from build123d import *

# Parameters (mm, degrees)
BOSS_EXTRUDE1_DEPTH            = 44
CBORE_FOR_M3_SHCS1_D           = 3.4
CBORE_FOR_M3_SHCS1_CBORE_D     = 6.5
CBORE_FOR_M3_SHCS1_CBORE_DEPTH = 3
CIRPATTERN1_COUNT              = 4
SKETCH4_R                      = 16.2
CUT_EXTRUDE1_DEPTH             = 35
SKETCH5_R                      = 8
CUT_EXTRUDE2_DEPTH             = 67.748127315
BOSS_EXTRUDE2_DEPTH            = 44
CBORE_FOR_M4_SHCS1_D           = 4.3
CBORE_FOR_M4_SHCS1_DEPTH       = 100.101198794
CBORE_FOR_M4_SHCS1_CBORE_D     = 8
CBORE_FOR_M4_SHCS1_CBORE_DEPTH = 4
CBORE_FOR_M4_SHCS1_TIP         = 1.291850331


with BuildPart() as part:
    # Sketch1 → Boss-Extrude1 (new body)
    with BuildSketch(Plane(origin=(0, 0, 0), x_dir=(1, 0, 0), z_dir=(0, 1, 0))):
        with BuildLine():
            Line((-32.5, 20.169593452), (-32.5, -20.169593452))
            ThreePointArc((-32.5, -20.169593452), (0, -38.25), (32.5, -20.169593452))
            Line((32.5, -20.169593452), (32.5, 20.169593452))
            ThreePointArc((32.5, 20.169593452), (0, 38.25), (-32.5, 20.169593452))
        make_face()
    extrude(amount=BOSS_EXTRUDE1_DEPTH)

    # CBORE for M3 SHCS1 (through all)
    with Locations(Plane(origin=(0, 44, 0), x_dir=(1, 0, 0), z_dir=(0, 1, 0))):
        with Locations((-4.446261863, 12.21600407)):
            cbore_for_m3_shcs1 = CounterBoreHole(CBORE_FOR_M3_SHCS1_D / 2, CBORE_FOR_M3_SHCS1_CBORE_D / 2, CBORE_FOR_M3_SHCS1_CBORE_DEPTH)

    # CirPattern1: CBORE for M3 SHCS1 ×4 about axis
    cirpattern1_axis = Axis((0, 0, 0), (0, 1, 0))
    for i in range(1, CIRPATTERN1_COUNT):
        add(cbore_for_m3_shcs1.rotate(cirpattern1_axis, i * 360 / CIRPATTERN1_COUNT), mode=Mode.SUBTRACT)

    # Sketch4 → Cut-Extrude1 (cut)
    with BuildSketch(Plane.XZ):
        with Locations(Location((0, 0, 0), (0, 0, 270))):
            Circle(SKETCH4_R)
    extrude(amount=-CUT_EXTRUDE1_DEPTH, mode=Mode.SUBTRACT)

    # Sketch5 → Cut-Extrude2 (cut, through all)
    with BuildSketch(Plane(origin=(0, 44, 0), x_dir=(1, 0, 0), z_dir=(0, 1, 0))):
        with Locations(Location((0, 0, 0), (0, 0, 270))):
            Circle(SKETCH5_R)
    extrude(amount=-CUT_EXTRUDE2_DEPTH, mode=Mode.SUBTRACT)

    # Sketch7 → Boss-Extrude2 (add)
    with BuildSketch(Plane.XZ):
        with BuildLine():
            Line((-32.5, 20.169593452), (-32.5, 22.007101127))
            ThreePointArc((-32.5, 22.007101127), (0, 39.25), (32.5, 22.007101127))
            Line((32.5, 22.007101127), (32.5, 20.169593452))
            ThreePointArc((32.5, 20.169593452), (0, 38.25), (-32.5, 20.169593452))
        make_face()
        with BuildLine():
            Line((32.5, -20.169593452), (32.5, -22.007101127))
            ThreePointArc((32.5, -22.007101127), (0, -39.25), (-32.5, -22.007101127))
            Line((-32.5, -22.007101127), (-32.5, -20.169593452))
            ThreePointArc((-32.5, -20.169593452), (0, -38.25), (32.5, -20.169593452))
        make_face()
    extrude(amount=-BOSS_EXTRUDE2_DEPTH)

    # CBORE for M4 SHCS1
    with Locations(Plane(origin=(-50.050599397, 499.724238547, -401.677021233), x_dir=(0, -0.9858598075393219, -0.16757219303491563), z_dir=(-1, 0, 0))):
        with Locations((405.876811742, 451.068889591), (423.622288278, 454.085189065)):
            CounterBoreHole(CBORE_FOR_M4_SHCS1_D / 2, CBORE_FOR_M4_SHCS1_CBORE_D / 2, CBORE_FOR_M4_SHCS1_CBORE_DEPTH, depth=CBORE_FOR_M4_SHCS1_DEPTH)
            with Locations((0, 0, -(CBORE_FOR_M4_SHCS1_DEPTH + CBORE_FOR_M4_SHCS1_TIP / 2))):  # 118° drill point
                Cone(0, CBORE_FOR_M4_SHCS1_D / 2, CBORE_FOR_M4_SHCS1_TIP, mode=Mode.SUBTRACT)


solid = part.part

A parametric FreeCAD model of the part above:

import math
import FreeCAD as App
import Part
import Sketcher

V = App.Vector
Q = App.Units.Quantity

doc = App.newDocument("Part")
params = doc.addObject("Spreadsheet::Sheet", "Params")
for row, (alias, value) in enumerate([
    ("sketch1_radius", "38.25 mm"),
    ("pad1_length", "44 mm"),
    ("sketch2_diameter", "3.4 mm"),
    ("hole_diameter", "3.4 mm"),
    ("hole_cbore_diameter", "6.5 mm"),
    ("hole_cbore_depth", "3 mm"),
    ("sketch3_diameter", "32.4 mm"),
    ("pocket1_length", "35 mm"),
    ("sketch4_diameter", "16 mm"),
    ("sketch5_radius", "38.25 mm"),
    ("sketch5_radius2", "39.25 mm"),
    ("pad2_length", "44 mm"),
    ("sketch6_diameter", "4.3 mm"),
    ("hole2_diameter", "4.3 mm"),
    ("hole2_depth", "100.101199 mm"),
    ("hole2_cbore_diameter", "8 mm"),
    ("hole2_cbore_depth", "4 mm"),
], start=1):
    params.set(f"A{row}", alias)
    params.set(f"B{row}", "=" + value)
    params.setAlias(f"B{row}", alias)

body = doc.addObject("PartDesign::Body", "Body")

# Sketch on XZ plane
sketch1 = body.newObject("Sketcher::SketchObject", "Sketch")
sketch1.AttachmentSupport = (doc.getObject("XZ_Plane"), [""])
sketch1.MapMode = "FlatFace"
sketch1.addGeometry(Part.LineSegment(V(-32, -20, 0), V(-32, 20, 0)), False)
sketch1.addGeometry(Part.ArcOfCircle(Part.Circle(V(0, 0, 0), V(0, 0, 1), 38), math.radians(32), math.radians(148)), False)
sketch1.addGeometry(Part.LineSegment(V(32, 20, 0), V(32, -20, 0)), False)
sketch1.addGeometry(Part.ArcOfCircle(Part.Circle(V(0, 0, 0), V(0, 0, 1), 38), math.radians(-148), math.radians(-32)), False)
sketch1.addConstraint(Sketcher.Constraint("Coincident", 0, 2, 1, 2))
sketch1.addConstraint(Sketcher.Constraint("Coincident", 1, 1, 2, 1))
sketch1.addConstraint(Sketcher.Constraint("Coincident", 2, 2, 3, 2))
sketch1.addConstraint(Sketcher.Constraint("Coincident", 3, 1, 0, 1))
sketch1.addConstraint(Sketcher.Constraint("Vertical", 0))
sketch1.addConstraint(Sketcher.Constraint("Vertical", 2))
sketch1.addConstraint(Sketcher.Constraint("Coincident", 1, 3, -1, 1))
sketch1.addConstraint(Sketcher.Constraint("Coincident", 3, 3, -1, 1))
sketch1.addConstraint(Sketcher.Constraint("Equal", 1, 3))
sketch1.addConstraint(Sketcher.Constraint("Horizontal", 0, 2, 1, 1))
sketch1.addConstraint(Sketcher.Constraint("Radius", 1, Q("38.25 mm")))
sketch1.addConstraint(Sketcher.Constraint("DistanceX", 0, 2, 1, 1, Q("65 mm")))
sketch1.setExpression("Constraints[10]", "Params.sketch1_radius")
pad1 = body.newObject("PartDesign::Pad", "Pad")
pad1.Profile = sketch1
pad1.setExpression("Length", "Params.pad1_length")
pad1.Reversed = True

# Sketch on XZ plane
sketch2 = body.newObject("Sketcher::SketchObject", "Sketch001")
sketch2.AttachmentSupport = (doc.getObject("XZ_Plane"), [""])
sketch2.MapMode = "FlatFace"
sketch2.AttachmentOffset = App.Placement(V(0, 0, -44), App.Rotation())
sketch2.addGeometry(Part.Circle(V(-4.4, -12.2, 0), V(0, 0, 1), 1.7), False)
sketch2.addConstraint(Sketcher.Constraint("Diameter", 0, Q("3.4 mm")))
sketch2.addConstraint(Sketcher.Constraint("DistanceX", 0, 3, -1, 1, Q("4.446262 mm")))
sketch2.addConstraint(Sketcher.Constraint("DistanceY", 0, 3, -1, 1, Q("12.216004 mm")))
sketch2.setExpression("Constraints[0]", "Params.sketch2_diameter")
doc.recompute()
hole = body.newObject("PartDesign::Hole", "Hole")
hole.Profile = sketch2
hole.ThreadType = "None"
hole.setExpression("Diameter", "Params.hole_diameter")
hole.DepthType = "ThroughAll"
hole.HoleCutType = "Counterbore"
hole.setExpression("HoleCutDiameter", "Params.hole_cbore_diameter")
hole.setExpression("HoleCutDepth", "Params.hole_cbore_depth")
hole.Reversed = True
doc.recompute()

polarpattern = body.newObject("PartDesign::PolarPattern", "PolarPattern")
polarpattern.Originals = [hole]
polarpattern.Axis = (doc.getObject("Y_Axis"), [""])
polarpattern.Angle = 360
polarpattern.Occurrences = 4
body.Tip = polarpattern

# Sketch on XZ plane
sketch3 = body.newObject("Sketcher::SketchObject", "Sketch002")
sketch3.AttachmentSupport = (doc.getObject("XZ_Plane"), [""])
sketch3.MapMode = "FlatFace"
sketch3.addGeometry(Part.Circle(V(0, 0, 0), V(0, 0, 1), 16), False)
sketch3.addConstraint(Sketcher.Constraint("Coincident", 0, 3, -1, 1))
sketch3.addConstraint(Sketcher.Constraint("Diameter", 0, Q("32.4 mm")))
sketch3.setExpression("Constraints[1]", "Params.sketch3_diameter")
pocket1 = body.newObject("PartDesign::Pocket", "Pocket")
pocket1.Profile = sketch3
pocket1.setExpression("Length", "Params.pocket1_length")

# Sketch on XZ plane
sketch4 = body.newObject("Sketcher::SketchObject", "Sketch003")
sketch4.AttachmentSupport = (doc.getObject("XZ_Plane"), [""])
sketch4.MapMode = "FlatFace"
sketch4.AttachmentOffset = App.Placement(V(0, 0, -44), App.Rotation())
sketch4.addGeometry(Part.Circle(V(0, 0, 0), V(0, 0, 1), 8), False)
sketch4.addConstraint(Sketcher.Constraint("Coincident", 0, 3, -1, 1))
sketch4.addConstraint(Sketcher.Constraint("Diameter", 0, Q("16 mm")))
sketch4.setExpression("Constraints[1]", "Params.sketch4_diameter")
pocket2 = body.newObject("PartDesign::Pocket", "Pocket001")
pocket2.Profile = sketch4
pocket2.Type = "ThroughAll"
pocket2.Reversed = True

# Sketch on XZ plane
sketch5 = body.newObject("Sketcher::SketchObject", "Sketch004")
sketch5.AttachmentSupport = (doc.getObject("XZ_Plane"), [""])
sketch5.MapMode = "FlatFace"
sketch5.addGeometry(Part.LineSegment(V(-32.5, 22, 0), V(-32.5, 20.2, 0)), False)
sketch5.addGeometry(Part.ArcOfCircle(Part.Circle(V(0, 0, 0), V(0, 0, 1), 38.3), math.radians(32), math.radians(148)), False)
sketch5.addGeometry(Part.LineSegment(V(32.5, 20.2, 0), V(32.5, 22, 0)), False)
sketch5.addGeometry(Part.ArcOfCircle(Part.Circle(V(0, 0, 0), V(0, 0, 1), 39.2), math.radians(34), math.radians(146)), False)
sketch5.addGeometry(Part.LineSegment(V(32.5, -22, 0), V(32.5, -20.2, 0)), False)
sketch5.addGeometry(Part.ArcOfCircle(Part.Circle(V(0, 0, 0), V(0, 0, 1), 38.3), math.radians(-148), math.radians(-32)), False)
sketch5.addGeometry(Part.LineSegment(V(-32.5, -20.2, 0), V(-32.5, -22, 0)), False)
sketch5.addGeometry(Part.ArcOfCircle(Part.Circle(V(0, 0, 0), V(0, 0, 1), 39.2), math.radians(-146), math.radians(-34)), False)
sketch5.addConstraint(Sketcher.Constraint("Coincident", 0, 2, 1, 2))
sketch5.addConstraint(Sketcher.Constraint("Coincident", 1, 1, 2, 1))
sketch5.addConstraint(Sketcher.Constraint("Coincident", 2, 2, 3, 1))
sketch5.addConstraint(Sketcher.Constraint("Coincident", 3, 2, 0, 1))
sketch5.addConstraint(Sketcher.Constraint("Coincident", 4, 2, 5, 2))
sketch5.addConstraint(Sketcher.Constraint("Coincident", 5, 1, 6, 1))
sketch5.addConstraint(Sketcher.Constraint("Coincident", 6, 2, 7, 1))
sketch5.addConstraint(Sketcher.Constraint("Coincident", 7, 2, 4, 1))
sketch5.addConstraint(Sketcher.Constraint("Vertical", 0))
sketch5.addConstraint(Sketcher.Constraint("Vertical", 2))
sketch5.addConstraint(Sketcher.Constraint("Vertical", 4))
sketch5.addConstraint(Sketcher.Constraint("Vertical", 6))
sketch5.addConstraint(Sketcher.Constraint("Coincident", 1, 3, -1, 1))
sketch5.addConstraint(Sketcher.Constraint("Coincident", 3, 3, -1, 1))
sketch5.addConstraint(Sketcher.Constraint("Coincident", 5, 3, -1, 1))
sketch5.addConstraint(Sketcher.Constraint("Coincident", 7, 3, -1, 1))
sketch5.addConstraint(Sketcher.Constraint("Equal", 1, 5))
sketch5.addConstraint(Sketcher.Constraint("Equal", 3, 7))
sketch5.addConstraint(Sketcher.Constraint("Horizontal", 0, 2, 1, 1))
sketch5.addConstraint(Sketcher.Constraint("Horizontal", 4, 2, 5, 1))
sketch5.addConstraint(Sketcher.Constraint("Vertical", 2, 2, 4, 2))
sketch5.addConstraint(Sketcher.Constraint("Radius", 1, Q("38.25 mm")))
sketch5.addConstraint(Sketcher.Constraint("Radius", 3, Q("39.25 mm")))
sketch5.addConstraint(Sketcher.Constraint("DistanceX", 0, 2, 1, 1, Q("65 mm")))
sketch5.setExpression("Constraints[21]", "Params.sketch5_radius")
sketch5.setExpression("Constraints[22]", "Params.sketch5_radius2")
pad2 = body.newObject("PartDesign::Pad", "Pad001")
pad2.Profile = sketch5
pad2.setExpression("Length", "Params.pad2_length")
pad2.Reversed = True

# Sketch on YZ plane
sketch6 = body.newObject("Sketcher::SketchObject", "Sketch005")
sketch6.AttachmentSupport = (doc.getObject("YZ_Plane"), [""])
sketch6.MapMode = "FlatFace"
sketch6.AttachmentOffset = App.Placement(V(0, 0, -50.050599), App.Rotation())
sketch6.addGeometry(Part.Circle(V(24, -25, 0), V(0, 0, 1), 2.1), False)
sketch6.addGeometry(Part.Circle(V(6, -25, 0), V(0, 0, 1), 2.1), False)
sketch6.addConstraint(Sketcher.Constraint("Equal", 0, 1))
sketch6.addConstraint(Sketcher.Constraint("Horizontal", 0, 3, 1, 3))
sketch6.addConstraint(Sketcher.Constraint("Diameter", 0, Q("4.3 mm")))
sketch6.addConstraint(Sketcher.Constraint("DistanceX", -1, 1, 0, 3, Q("24 mm")))
sketch6.addConstraint(Sketcher.Constraint("DistanceY", 0, 3, -1, 1, Q("25 mm")))
sketch6.addConstraint(Sketcher.Constraint("DistanceX", -1, 1, 1, 3, Q("6 mm")))
sketch6.setExpression("Constraints[2]", "Params.sketch6_diameter")
doc.recompute()
hole2 = body.newObject("PartDesign::Hole", "Hole001")
hole2.Profile = sketch6
hole2.ThreadType = "None"
hole2.setExpression("Diameter", "Params.hole2_diameter")
hole2.DepthType = "Dimension"
hole2.setExpression("Depth", "Params.hole2_depth")
hole2.DrillPoint = "Angled"
hole2.DrillPointAngle = 118
hole2.HoleCutType = "Counterbore"
hole2.setExpression("HoleCutDiameter", "Params.hole2_cbore_diameter")
hole2.setExpression("HoleCutDepth", "Params.hole2_cbore_depth")
hole2.Reversed = True

doc.recompute()
